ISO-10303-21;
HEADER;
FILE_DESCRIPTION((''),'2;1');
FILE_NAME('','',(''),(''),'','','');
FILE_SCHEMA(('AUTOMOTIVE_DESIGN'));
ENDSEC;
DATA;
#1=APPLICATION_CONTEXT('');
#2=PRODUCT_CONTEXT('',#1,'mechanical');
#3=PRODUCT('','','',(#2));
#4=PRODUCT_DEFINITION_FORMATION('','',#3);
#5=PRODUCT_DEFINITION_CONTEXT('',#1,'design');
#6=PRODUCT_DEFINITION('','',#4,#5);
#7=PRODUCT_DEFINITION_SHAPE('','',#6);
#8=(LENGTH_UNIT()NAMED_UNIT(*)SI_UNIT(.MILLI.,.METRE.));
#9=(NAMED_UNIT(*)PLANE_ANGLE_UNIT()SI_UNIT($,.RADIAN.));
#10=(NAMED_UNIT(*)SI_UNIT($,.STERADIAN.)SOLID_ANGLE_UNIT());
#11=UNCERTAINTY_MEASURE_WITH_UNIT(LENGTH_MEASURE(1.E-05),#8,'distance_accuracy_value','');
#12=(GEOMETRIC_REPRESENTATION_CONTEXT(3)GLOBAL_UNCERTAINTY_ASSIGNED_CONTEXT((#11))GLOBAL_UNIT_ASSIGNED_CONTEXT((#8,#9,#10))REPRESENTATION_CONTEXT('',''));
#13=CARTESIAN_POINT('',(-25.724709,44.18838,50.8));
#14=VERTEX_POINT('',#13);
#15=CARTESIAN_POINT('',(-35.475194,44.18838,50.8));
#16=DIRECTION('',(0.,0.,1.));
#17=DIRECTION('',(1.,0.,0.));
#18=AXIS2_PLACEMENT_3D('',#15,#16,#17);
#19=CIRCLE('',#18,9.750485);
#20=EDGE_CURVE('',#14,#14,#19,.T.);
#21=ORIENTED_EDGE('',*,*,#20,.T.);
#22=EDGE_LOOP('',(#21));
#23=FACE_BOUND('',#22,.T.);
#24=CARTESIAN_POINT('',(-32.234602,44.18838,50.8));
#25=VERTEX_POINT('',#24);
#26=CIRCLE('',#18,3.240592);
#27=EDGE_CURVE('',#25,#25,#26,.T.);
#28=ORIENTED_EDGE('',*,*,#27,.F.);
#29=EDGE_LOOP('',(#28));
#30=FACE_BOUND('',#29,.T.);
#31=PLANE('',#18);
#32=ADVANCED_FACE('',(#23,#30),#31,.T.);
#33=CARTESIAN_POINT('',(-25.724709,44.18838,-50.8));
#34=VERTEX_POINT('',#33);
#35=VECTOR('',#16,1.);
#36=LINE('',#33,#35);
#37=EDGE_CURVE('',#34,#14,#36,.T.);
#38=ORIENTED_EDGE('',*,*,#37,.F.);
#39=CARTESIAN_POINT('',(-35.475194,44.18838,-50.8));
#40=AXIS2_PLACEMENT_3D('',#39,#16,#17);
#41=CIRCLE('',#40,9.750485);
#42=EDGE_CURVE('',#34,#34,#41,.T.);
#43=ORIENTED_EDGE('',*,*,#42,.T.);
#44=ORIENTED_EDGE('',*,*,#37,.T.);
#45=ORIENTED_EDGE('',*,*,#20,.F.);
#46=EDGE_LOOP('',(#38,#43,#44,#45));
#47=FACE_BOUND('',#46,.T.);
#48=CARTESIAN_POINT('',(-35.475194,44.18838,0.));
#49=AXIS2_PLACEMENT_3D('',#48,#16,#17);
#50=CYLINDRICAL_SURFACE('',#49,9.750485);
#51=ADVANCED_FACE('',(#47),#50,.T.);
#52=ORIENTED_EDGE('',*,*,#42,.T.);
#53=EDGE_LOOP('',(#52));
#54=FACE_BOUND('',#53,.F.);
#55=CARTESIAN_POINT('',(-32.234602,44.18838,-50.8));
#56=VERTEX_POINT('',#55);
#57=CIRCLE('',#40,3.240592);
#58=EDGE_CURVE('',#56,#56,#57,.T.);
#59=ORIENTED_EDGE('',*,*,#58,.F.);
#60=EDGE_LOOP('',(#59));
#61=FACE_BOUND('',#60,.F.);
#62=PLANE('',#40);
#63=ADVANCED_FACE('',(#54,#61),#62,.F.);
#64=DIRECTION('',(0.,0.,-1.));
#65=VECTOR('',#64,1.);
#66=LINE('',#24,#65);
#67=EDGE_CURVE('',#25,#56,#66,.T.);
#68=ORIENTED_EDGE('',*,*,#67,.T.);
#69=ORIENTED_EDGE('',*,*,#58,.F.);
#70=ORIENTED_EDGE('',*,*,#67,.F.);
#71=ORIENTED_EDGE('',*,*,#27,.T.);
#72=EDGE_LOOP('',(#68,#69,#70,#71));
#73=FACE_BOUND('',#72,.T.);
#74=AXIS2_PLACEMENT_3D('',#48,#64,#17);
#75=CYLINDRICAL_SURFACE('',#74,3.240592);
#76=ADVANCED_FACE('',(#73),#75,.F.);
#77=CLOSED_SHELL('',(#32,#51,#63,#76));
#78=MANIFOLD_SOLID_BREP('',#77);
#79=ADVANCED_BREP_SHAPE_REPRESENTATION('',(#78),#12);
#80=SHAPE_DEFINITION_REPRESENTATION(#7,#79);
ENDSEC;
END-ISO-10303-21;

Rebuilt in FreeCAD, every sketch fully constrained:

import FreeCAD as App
import Part
import Sketcher
from FreeCAD import Vector
Q = App.Units.Quantity

doc = App.newDocument("Part")
body = doc.addObject("PartDesign::Body", "Body")

sketch1 = doc.addObject("Sketcher::SketchObject", "Sketch")
body.addObject(sketch1)
sketch1.AttachmentSupport = (doc.XY_Plane, [""])
sketch1.MapMode = "FlatFace"
sketch1.addGeometry([
    Part.Circle(Vector(-35.5, 44.2, 0), Vector(0, 0, 1), 9.8),
    Part.Circle(Vector(-35.5, 44.2, 0), Vector(0, 0, 1), 3.2),
], False)
sketch1.addConstraint([
    Sketcher.Constraint("Coincident", 1, 3, 0, 3),
    Sketcher.Constraint("Diameter", 0, 19.50097),
    Sketcher.Constraint("Diameter", 1, 6.481184),
    Sketcher.Constraint("DistanceY", -1, 1, 0, 3, Q("1.7397 in")),
    Sketcher.Constraint("DistanceX", 0, 3, -1, 1, 35.475194),
])
pad1 = doc.addObject("PartDesign::Pad", "Pad")
body.addObject(pad1)
pad1.Profile = sketch1
pad1.Length = Q("4 in")
pad1.Midplane = True

doc.recompute()
